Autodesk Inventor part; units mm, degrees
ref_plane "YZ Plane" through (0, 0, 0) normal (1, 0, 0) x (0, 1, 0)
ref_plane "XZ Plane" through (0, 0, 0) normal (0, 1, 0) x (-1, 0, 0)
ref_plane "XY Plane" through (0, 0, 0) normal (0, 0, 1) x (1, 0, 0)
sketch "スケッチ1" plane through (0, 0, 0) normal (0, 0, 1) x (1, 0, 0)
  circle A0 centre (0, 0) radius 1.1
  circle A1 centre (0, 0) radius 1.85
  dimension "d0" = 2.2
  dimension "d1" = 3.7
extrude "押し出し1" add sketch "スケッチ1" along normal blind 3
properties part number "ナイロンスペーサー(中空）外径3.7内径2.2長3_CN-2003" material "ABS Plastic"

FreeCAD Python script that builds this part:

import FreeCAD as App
import Part
import Sketcher
from FreeCAD import Vector
Q = App.Units.Quantity

doc = App.newDocument("Part")
body = doc.addObject("PartDesign::Body", "Body")

# Sketch on XY plane
sketch1 = doc.addObject("Sketcher::SketchObject", "Sketch")
body.addObject(sketch1)
sketch1.AttachmentSupport = (doc.XY_Plane, [""])
sketch1.MapMode = "FlatFace"
sketch1.addGeometry([
    Part.Circle(Vector(0, 0, 0), Vector(0, 0, 1), 1.9),
    Part.Circle(Vector(0, 0, 0), Vector(0, 0, 1), 1.1),
], False)
sketch1.addConstraint([
    Sketcher.Constraint("Coincident", 0, 3, -1, 1),
    Sketcher.Constraint("Coincident", 1, 3, -1, 1),
    Sketcher.Constraint("Diameter", 0, Q("3.7 mm")),
    Sketcher.Constraint("Diameter", 1, Q("2.2 mm")),
])
pad1 = doc.addObject("PartDesign::Pad", "Pad")
body.addObject(pad1)
pad1.Profile = sketch1
pad1.Length = 3

doc.recompute()
